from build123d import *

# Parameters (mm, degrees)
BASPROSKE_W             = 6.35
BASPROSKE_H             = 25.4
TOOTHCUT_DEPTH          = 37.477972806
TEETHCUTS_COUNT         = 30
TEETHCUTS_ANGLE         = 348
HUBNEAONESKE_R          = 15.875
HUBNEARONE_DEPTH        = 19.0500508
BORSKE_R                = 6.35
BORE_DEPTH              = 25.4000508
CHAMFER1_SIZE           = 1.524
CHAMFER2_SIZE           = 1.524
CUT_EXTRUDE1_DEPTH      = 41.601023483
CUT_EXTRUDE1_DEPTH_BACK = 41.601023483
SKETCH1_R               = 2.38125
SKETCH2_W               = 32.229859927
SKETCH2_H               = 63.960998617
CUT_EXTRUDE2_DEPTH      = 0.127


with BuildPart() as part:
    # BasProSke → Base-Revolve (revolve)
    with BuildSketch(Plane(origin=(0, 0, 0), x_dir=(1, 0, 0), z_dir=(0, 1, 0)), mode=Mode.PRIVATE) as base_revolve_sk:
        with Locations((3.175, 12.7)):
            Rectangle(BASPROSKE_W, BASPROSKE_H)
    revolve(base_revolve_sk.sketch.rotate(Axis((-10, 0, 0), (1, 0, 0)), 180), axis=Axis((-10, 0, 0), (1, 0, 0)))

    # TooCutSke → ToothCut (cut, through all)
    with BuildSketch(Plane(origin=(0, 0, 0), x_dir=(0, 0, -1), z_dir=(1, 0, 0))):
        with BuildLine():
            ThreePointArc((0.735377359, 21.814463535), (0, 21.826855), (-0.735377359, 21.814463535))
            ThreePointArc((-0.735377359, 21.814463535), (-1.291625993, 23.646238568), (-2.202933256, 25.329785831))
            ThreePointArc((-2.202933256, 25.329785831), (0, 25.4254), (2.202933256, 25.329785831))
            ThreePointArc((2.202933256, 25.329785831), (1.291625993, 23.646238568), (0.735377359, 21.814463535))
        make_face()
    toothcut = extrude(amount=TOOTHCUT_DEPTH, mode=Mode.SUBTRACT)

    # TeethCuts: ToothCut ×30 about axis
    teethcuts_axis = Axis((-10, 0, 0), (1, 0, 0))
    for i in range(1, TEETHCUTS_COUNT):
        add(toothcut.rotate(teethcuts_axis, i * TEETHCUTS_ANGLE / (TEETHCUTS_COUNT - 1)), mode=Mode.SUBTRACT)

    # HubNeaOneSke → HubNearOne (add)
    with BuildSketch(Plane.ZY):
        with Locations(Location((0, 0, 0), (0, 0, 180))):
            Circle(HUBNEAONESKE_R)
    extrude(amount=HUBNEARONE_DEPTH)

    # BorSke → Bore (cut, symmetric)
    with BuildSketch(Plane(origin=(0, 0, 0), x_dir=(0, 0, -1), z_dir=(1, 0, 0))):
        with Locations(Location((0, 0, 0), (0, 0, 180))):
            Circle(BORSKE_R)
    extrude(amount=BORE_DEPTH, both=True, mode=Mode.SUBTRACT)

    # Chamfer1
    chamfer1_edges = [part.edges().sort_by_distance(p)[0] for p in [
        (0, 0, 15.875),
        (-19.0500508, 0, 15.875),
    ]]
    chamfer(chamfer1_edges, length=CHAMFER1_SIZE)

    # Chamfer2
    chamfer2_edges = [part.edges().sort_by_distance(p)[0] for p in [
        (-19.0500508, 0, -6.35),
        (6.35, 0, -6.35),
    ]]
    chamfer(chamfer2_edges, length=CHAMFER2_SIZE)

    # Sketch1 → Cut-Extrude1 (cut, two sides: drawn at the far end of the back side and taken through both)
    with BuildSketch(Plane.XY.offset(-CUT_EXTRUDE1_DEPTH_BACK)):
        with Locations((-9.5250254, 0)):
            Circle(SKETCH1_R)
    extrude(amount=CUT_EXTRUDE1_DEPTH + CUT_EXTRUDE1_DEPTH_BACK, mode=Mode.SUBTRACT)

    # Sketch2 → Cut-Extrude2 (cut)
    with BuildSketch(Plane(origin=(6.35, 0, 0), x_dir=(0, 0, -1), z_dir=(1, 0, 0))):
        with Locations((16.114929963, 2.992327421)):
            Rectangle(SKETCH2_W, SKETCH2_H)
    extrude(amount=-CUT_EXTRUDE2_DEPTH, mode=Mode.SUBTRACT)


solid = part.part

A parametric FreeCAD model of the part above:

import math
import FreeCAD as App
import Part
import Sketcher
from FreeCAD import Vector
Q = App.Units.Quantity


def edges_at(feature, points):
    """Names of the edges that pass closest to the given points."""
    edges = feature.Shape.Edges
    near = lambda p: min(range(len(edges)), key=lambda i: edges[i].distToShape(Part.Vertex(*p))[0])
    return sorted({f"Edge{near(p) + 1}" for p in points})

doc = App.newDocument("Part")
params = doc.addObject("Spreadsheet::Sheet", "Params")
for row, (alias, value) in enumerate([
    ("sketch1_height", "1 in"),
    ("sketch1_width", "0.25 in"),
    ("revolution_angle", "360 deg"),
    ("sketch2_radius", "0.375 in"),
    ("sketch2_radius2", "1.001 in"),
    ("sketch3_diameter", "1.25 in"),
    ("pad1_length", "19.050051 mm"),
    ("sketch4_diameter", "0.5 in"),
    ("pocket2_length", "50.800102 mm"),
    ("chamfer_size", "0.06 in"),
    ("chamfer2_size", "0.06 in"),
    ("sketch5_diameter", "0.1875 in"),
    ("pocket4_length", "0.005 in"),
], start=1):
    params.set(f"A{row}", alias)
    params.set(f"B{row}", "=" + value)
    params.setAlias(f"B{row}", alias)

body = doc.addObject("PartDesign::Body", "Body")

sketch1 = doc.addObject("Sketcher::SketchObject", "Sketch")
body.addObject(sketch1)
sketch1.AttachmentSupport = (doc.XZ_Plane, [""])
sketch1.MapMode = "FlatFace"
sketch1.addGeometry([
    Part.LineSegment(Vector(0, -25.4, 0), Vector(0, 0, 0)),
    Part.LineSegment(Vector(0, 0, 0), Vector(6.35, 0, 0)),
    Part.LineSegment(Vector(6.35, 0, 0), Vector(6.35, -25.4, 0)),
    Part.LineSegment(Vector(6.35, -25.4, 0), Vector(0, -25.4, 0)),
], False)
sketch1.addConstraint([
    Sketcher.Constraint("Coincident", 0, 2, 1, 1),
    Sketcher.Constraint("Coincident", 1, 2, 2, 1),
    Sketcher.Constraint("Coincident", 2, 2, 3, 1),
    Sketcher.Constraint("Coincident", 3, 2, 0, 1),
    Sketcher.Constraint("Vertical", 0),
    Sketcher.Constraint("Horizontal", 1),
    Sketcher.Constraint("Vertical", 2),
    Sketcher.Constraint("Horizontal", 3),
    Sketcher.Constraint("Coincident", 0, 2, -1, 1),
    Sketcher.Constraint("DistanceY", 0, 1, 0, 2, Q("1 in")),
    Sketcher.Constraint("DistanceX", 1, 1, 1, 2, Q("0.25 in")),
])
sketch1.setExpression("Constraints[9]", "Params.sketch1_height")
sketch1.setExpression("Constraints[10]", "Params.sketch1_width")
revolution = doc.addObject("PartDesign::Revolution", "Revolution")
body.addObject(revolution)
revolution.Profile = sketch1
revolution.ReferenceAxis = (sketch1, ["H_Axis"])
revolution.setExpression("Angle", "Params.revolution_angle")

sketch2 = doc.addObject("Sketcher::SketchObject", "Sketch001")
body.addObject(sketch2)
sketch2.AttachmentSupport = (doc.YZ_Plane, [""])
sketch2.MapMode = "FlatFace"
sketch2.addGeometry([
    Part.ArcOfCircle(Part.Circle(Vector(0, 0, 0), Vector(0, 0, 1), 21.826855), math.radians(-1.930741), math.radians(1.930741)),
    Part.ArcOfCircle(Part.Circle(Vector(19.976731, -10.081412, 0), Vector(0, 0, 1), 9.525), math.radians(55.80574), math.radians(78.875718)),
    Part.ArcOfCircle(Part.Circle(Vector(0, 0, 0), Vector(0, 0, 1), 25.4254), math.radians(-4.970511), math.radians(4.970511)),
    Part.ArcOfCircle(Part.Circle(Vector(19.976731, 10.081412, 0), Vector(0, 0, 1), 9.525), math.radians(-78.875718), math.radians(-55.80574)),
], False)
sketch2.addConstraint([
    Sketcher.Constraint("Coincident", 0, 1, 1, 2),
    Sketcher.Constraint("Coincident", 1, 1, 2, 1),
    Sketcher.Constraint("Coincident", 2, 2, 3, 2),
    Sketcher.Constraint("Coincident", 3, 1, 0, 2),
    Sketcher.Constraint("Coincident", 0, 3, -1, 1),
    Sketcher.Constraint("Coincident", 2, 3, -1, 1),
    Sketcher.Constraint("Equal", 1, 3),
    Sketcher.Constraint("Symmetric", 1, 3, 3, 3, -1),
    Sketcher.Constraint("Radius", 1, Q("0.375 in")),
    Sketcher.Constraint("Radius", 2, Q("1.001 in")),
    Sketcher.Constraint("Radius", 0, 21.826855),
    Sketcher.Constraint("DistanceX", -1, 1, 1, 3, 19.976731),
    Sketcher.Constraint("DistanceY", 0, 1, 3, 3, 10.816789),
])
sketch2.setExpression("Constraints[8]", "Params.sketch2_radius")
sketch2.setExpression("Constraints[9]", "Params.sketch2_radius2")
pocket1 = doc.addObject("PartDesign::Pocket", "Pocket")
body.addObject(pocket1)
pocket1.Profile = sketch2
pocket1.Type = "ThroughAll"
pocket1.Reversed = True
doc.recompute()

polarpattern = doc.addObject("PartDesign::PolarPattern", "PolarPattern")
body.addObject(polarpattern)
polarpattern.Originals = [pocket1]
polarpattern.Axis = (doc.X_Axis, [""])
polarpattern.Angle = 360
polarpattern.Occurrences = 30
body.Tip = polarpattern

sketch3 = doc.addObject("Sketcher::SketchObject", "Sketch002")
body.addObject(sketch3)
sketch3.AttachmentSupport = (doc.YZ_Plane, [""])
sketch3.MapMode = "FlatFace"
sketch3.addGeometry(Part.Circle(Vector(0, 0, 0), Vector(0, 0, 1), 15.875), False)
sketch3.addConstraint([
    Sketcher.Constraint("Coincident", 0, 3, -1, 1),
    Sketcher.Constraint("Diameter", 0, Q("1.25 in")),
])
sketch3.setExpression("Constraints[1]", "Params.sketch3_diameter")
pad1 = doc.addObject("PartDesign::Pad", "Pad")
body.addObject(pad1)
pad1.Profile = sketch3
pad1.setExpression("Length", "Params.pad1_length")
pad1.Reversed = True

sketch4 = doc.addObject("Sketcher::SketchObject", "Sketch003")
body.addObject(sketch4)
sketch4.AttachmentSupport = (doc.YZ_Plane, [""])
sketch4.MapMode = "FlatFace"
sketch4.addGeometry(Part.Circle(Vector(0, 0, 0), Vector(0, 0, 1), 6.35), False)
sketch4.addConstraint([
    Sketcher.Constraint("Coincident", 0, 3, -1, 1),
    Sketcher.Constraint("Diameter", 0, Q("0.5 in")),
])
sketch4.setExpression("Constraints[1]", "Params.sketch4_diameter")
pocket2 = doc.addObject("PartDesign::Pocket", "Pocket001")
body.addObject(pocket2)
pocket2.Profile = sketch4
pocket2.setExpression("Length", "Params.pocket2_length")
pocket2.Midplane = True
doc.recompute()

chamfer = doc.addObject("PartDesign::Chamfer", "Chamfer")
body.addObject(chamfer)
chamfer.Base = (pocket2, edges_at(pocket2, [(0, 0, 15.875), (-19.05, 0, 15.875)]))
chamfer.setExpression("Size", "Params.chamfer_size")
doc.recompute()

chamfer2 = doc.addObject("PartDesign::Chamfer", "Chamfer001")
body.addObject(chamfer2)
chamfer2.Base = (chamfer, edges_at(chamfer, [(-19.05, 0, -6.35), (6.35, 0, -6.35)]))
chamfer2.setExpression("Size", "Params.chamfer2_size")

sketch5 = doc.addObject("Sketcher::SketchObject", "Sketch004")
body.addObject(sketch5)
sketch5.AttachmentSupport = (doc.XY_Plane, [""])
sketch5.MapMode = "FlatFace"
sketch5.addGeometry(Part.Circle(Vector(-9.525025, 0, 0), Vector(0, 0, 1), 2.38125), False)
sketch5.addConstraint([
    Sketcher.Constraint("PointOnObject", 0, 3, -1),
    Sketcher.Constraint("Diameter", 0, Q("0.1875 in")),
    Sketcher.Constraint("DistanceX", 0, 3, -1, 1, 9.525025),
])
sketch5.setExpression("Constraints[1]", "Params.sketch5_diameter")
pocket3 = doc.addObject("PartDesign::Pocket", "Pocket002")
body.addObject(pocket3)
pocket3.Profile = sketch5
pocket3.Type = "ThroughAll"
pocket3.Midplane = True

sketch6 = doc.addObject("Sketcher::SketchObject", "Sketch005")
body.addObject(sketch6)
sketch6.AttachmentSupport = (doc.YZ_Plane, [""])
sketch6.MapMode = "FlatFace"
sketch6.AttachmentOffset = App.Placement(Vector(0, 0, 0.25 * 25.4), App.Rotation())
sketch6.addGeometry([
    Part.LineSegment(Vector(34.972827, 0, 0), Vector(-28.988172, 0, 0)),
    Part.LineSegment(Vector(-28.988172, 0, 0), Vector(-28.988172, -32.22986, 0)),
    Part.LineSegment(Vector(-28.988172, -32.22986, 0), Vector(34.972827, -32.22986, 0)),
    Part.LineSegment(Vector(34.972827, -32.22986, 0), Vector(34.972827, 0, 0)),
], False)
sketch6.addConstraint([
    Sketcher.Constraint("Coincident", 0, 2, 1, 1),
    Sketcher.Constraint("Coincident", 1, 2, 2, 1),
    Sketcher.Constraint("Coincident", 2, 2, 3, 1),
    Sketcher.Constraint("Coincident", 3, 2, 0, 1),
    Sketcher.Constraint("Horizontal", 0),
    Sketcher.Constraint("Vertical", 1),
    Sketcher.Constraint("Horizontal", 2),
    Sketcher.Constraint("Vertical", 3),
    Sketcher.Constraint("PointOnObject", 0, 2, -1),
    Sketcher.Constraint("DistanceX", 0, 2, 0, 1, 63.960999),
    Sketcher.Constraint("DistanceY", 1, 2, 1, 1, 32.22986),
    Sketcher.Constraint("DistanceX", 0, 2, -1, 1, 28.988172),
])
pocket4 = doc.addObject("PartDesign::Pocket", "Pocket003")
body.addObject(pocket4)
pocket4.Profile = sketch6
pocket4.setExpression("Length", "Params.pocket4_length")

doc.recompute()
